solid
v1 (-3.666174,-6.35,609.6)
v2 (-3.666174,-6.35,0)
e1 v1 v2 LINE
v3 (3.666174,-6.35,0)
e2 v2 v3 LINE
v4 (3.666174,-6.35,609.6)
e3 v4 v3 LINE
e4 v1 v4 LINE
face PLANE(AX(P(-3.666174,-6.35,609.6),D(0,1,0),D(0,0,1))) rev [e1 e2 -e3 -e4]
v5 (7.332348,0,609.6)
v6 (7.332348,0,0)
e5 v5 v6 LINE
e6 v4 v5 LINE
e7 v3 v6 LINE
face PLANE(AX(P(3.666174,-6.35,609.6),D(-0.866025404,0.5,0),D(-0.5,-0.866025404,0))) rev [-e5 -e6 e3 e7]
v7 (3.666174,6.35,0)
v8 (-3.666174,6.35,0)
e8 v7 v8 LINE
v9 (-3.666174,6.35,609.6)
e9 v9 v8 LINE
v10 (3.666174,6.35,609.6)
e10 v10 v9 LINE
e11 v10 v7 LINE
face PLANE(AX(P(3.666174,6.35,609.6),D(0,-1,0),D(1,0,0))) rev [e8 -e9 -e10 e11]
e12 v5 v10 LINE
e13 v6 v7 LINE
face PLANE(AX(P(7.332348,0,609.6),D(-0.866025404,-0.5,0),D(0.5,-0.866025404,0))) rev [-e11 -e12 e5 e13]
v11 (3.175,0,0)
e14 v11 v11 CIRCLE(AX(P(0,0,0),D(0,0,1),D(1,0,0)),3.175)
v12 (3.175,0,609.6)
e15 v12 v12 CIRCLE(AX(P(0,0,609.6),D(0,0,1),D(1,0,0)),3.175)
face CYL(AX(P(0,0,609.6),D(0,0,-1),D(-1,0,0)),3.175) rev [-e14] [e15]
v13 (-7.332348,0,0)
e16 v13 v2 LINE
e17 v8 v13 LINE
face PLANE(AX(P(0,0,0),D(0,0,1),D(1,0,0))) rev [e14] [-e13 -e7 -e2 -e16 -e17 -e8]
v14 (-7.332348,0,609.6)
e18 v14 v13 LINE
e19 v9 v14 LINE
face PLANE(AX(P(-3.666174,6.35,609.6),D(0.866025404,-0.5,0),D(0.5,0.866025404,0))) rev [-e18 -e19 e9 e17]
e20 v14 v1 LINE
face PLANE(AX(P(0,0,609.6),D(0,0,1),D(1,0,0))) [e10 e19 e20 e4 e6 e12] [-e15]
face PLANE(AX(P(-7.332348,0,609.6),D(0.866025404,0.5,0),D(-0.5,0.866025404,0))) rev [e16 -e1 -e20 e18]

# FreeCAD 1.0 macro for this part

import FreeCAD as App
import Part
import Sketcher
Q = App.Units.Quantity

doc = App.newDocument("Part")
body = doc.addObject("PartDesign::Body", "Body")

sketch1 = body.newObject("Sketcher::SketchObject", "Sketch")
sketch1.AttachmentSupport = (doc.getObject("XY_Plane"), [""])
sketch1.MapMode = "FlatFace"
sketch1.addGeometry([
    Part.LineSegment(App.Vector(-3.7, 6.3, 0), App.Vector(-7.3, 0, 0)),
    Part.LineSegment(App.Vector(-7.3, 0, 0), App.Vector(-3.7, -6.3, 0)),
    Part.LineSegment(App.Vector(-3.7, -6.3, 0), App.Vector(3.7, -6.3, 0)),
    Part.LineSegment(App.Vector(3.7, -6.3, 0), App.Vector(7.3, 0, 0)),
    Part.LineSegment(App.Vector(7.3, 0, 0), App.Vector(3.7, 6.3, 0)),
    Part.LineSegment(App.Vector(3.7, 6.3, 0), App.Vector(-3.7, 6.3, 0)),
    Part.Circle(App.Vector(0, 0, 0), App.Vector(0, 0, 1), 3.2),
], False)
sketch1.addConstraint([
    Sketcher.Constraint("Coincident", 0, 2, 1, 1),
    Sketcher.Constraint("Coincident", 1, 2, 2, 1),
    Sketcher.Constraint("Coincident", 2, 2, 3, 1),
    Sketcher.Constraint("Coincident", 3, 2, 4, 1),
    Sketcher.Constraint("Coincident", 4, 2, 5, 1),
    Sketcher.Constraint("Coincident", 5, 2, 0, 1),
    Sketcher.Constraint("Horizontal", 2),
    Sketcher.Constraint("Horizontal", 5),
    Sketcher.Constraint("Coincident", 6, 3, -1, 1),
    Sketcher.Constraint("Symmetric", 0, 2, 3, 2, -1, 1),
    Sketcher.Constraint("Symmetric", 1, 2, 4, 2, -1, 1),
    Sketcher.Constraint("PointOnObject", 0, 2, -1),
    Sketcher.Constraint("Parallel", 0, 3),
    Sketcher.Constraint("Vertical", 2, 2, 4, 2),
    Sketcher.Constraint("Diameter", 6, Q("0.25 in")),
    Sketcher.Constraint("Angle", 0, Q("-120 deg")),
    Sketcher.Constraint("DistanceY", 2, 2, 4, 2, Q("0.5 in")),
    Sketcher.Constraint("DistanceX", 2, 1, 2, 2, 7.332348),
])
pad1 = body.newObject("PartDesign::Pad", "Pad")
pad1.Profile = sketch1
pad1.Length = Q("24 in")

doc.recompute()
